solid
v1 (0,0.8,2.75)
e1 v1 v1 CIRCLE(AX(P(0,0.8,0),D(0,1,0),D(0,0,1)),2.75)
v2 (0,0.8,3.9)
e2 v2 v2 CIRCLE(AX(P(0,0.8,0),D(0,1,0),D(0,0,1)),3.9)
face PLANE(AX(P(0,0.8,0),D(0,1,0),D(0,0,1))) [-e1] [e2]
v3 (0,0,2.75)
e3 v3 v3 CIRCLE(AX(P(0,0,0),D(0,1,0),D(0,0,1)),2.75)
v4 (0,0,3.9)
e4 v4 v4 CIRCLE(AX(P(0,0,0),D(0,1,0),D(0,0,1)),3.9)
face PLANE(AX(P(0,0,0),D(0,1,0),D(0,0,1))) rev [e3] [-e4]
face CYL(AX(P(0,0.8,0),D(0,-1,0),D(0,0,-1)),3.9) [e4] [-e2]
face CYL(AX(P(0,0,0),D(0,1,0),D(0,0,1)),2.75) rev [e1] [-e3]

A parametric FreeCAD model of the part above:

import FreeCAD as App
import Part
import Sketcher

doc = App.newDocument("Part")
body = doc.addObject("PartDesign::Body", "Body")

# Sketch on XZ plane
sketch1 = body.newObject("Sketcher::SketchObject", "Sketch")
sketch1.AttachmentSupport = (doc.getObject("XZ_Plane"), [""])
sketch1.MapMode = "FlatFace"
sketch1.addGeometry(Part.Circle(App.Vector(0, 0, 0), App.Vector(0, 0, 1), 3.9), False)
sketch1.addConstraint(Sketcher.Constraint("Coincident", 0, 3, -1, 1))
sketch1.addConstraint(Sketcher.Constraint("Diameter", 0, 7.8))
pad1 = body.newObject("PartDesign::Pad", "Pad")
pad1.Profile = sketch1
pad1.Length = 0.8
pad1.Reversed = True

# Sketch on XZ plane
sketch2 = body.newObject("Sketcher::SketchObject", "Sketch001")
sketch2.AttachmentSupport = (doc.getObject("XZ_Plane"), [""])
sketch2.MapMode = "FlatFace"
sketch2.AttachmentOffset = App.Placement(App.Vector(0, 0, -0.8), App.Rotation())
sketch2.addGeometry(Part.Circle(App.Vector(0, 0, 0), App.Vector(0, 0, 1), 2.8), False)
sketch2.addConstraint(Sketcher.Constraint("Coincident", 0, 3, -1, 1))
sketch2.addConstraint(Sketcher.Constraint("Diameter", 0, 5.5))
pocket1 = body.newObject("PartDesign::Pocket", "Pocket")
pocket1.Profile = sketch2
pocket1.Type = "ThroughAll"
pocket1.Reversed = True

doc.recompute()
